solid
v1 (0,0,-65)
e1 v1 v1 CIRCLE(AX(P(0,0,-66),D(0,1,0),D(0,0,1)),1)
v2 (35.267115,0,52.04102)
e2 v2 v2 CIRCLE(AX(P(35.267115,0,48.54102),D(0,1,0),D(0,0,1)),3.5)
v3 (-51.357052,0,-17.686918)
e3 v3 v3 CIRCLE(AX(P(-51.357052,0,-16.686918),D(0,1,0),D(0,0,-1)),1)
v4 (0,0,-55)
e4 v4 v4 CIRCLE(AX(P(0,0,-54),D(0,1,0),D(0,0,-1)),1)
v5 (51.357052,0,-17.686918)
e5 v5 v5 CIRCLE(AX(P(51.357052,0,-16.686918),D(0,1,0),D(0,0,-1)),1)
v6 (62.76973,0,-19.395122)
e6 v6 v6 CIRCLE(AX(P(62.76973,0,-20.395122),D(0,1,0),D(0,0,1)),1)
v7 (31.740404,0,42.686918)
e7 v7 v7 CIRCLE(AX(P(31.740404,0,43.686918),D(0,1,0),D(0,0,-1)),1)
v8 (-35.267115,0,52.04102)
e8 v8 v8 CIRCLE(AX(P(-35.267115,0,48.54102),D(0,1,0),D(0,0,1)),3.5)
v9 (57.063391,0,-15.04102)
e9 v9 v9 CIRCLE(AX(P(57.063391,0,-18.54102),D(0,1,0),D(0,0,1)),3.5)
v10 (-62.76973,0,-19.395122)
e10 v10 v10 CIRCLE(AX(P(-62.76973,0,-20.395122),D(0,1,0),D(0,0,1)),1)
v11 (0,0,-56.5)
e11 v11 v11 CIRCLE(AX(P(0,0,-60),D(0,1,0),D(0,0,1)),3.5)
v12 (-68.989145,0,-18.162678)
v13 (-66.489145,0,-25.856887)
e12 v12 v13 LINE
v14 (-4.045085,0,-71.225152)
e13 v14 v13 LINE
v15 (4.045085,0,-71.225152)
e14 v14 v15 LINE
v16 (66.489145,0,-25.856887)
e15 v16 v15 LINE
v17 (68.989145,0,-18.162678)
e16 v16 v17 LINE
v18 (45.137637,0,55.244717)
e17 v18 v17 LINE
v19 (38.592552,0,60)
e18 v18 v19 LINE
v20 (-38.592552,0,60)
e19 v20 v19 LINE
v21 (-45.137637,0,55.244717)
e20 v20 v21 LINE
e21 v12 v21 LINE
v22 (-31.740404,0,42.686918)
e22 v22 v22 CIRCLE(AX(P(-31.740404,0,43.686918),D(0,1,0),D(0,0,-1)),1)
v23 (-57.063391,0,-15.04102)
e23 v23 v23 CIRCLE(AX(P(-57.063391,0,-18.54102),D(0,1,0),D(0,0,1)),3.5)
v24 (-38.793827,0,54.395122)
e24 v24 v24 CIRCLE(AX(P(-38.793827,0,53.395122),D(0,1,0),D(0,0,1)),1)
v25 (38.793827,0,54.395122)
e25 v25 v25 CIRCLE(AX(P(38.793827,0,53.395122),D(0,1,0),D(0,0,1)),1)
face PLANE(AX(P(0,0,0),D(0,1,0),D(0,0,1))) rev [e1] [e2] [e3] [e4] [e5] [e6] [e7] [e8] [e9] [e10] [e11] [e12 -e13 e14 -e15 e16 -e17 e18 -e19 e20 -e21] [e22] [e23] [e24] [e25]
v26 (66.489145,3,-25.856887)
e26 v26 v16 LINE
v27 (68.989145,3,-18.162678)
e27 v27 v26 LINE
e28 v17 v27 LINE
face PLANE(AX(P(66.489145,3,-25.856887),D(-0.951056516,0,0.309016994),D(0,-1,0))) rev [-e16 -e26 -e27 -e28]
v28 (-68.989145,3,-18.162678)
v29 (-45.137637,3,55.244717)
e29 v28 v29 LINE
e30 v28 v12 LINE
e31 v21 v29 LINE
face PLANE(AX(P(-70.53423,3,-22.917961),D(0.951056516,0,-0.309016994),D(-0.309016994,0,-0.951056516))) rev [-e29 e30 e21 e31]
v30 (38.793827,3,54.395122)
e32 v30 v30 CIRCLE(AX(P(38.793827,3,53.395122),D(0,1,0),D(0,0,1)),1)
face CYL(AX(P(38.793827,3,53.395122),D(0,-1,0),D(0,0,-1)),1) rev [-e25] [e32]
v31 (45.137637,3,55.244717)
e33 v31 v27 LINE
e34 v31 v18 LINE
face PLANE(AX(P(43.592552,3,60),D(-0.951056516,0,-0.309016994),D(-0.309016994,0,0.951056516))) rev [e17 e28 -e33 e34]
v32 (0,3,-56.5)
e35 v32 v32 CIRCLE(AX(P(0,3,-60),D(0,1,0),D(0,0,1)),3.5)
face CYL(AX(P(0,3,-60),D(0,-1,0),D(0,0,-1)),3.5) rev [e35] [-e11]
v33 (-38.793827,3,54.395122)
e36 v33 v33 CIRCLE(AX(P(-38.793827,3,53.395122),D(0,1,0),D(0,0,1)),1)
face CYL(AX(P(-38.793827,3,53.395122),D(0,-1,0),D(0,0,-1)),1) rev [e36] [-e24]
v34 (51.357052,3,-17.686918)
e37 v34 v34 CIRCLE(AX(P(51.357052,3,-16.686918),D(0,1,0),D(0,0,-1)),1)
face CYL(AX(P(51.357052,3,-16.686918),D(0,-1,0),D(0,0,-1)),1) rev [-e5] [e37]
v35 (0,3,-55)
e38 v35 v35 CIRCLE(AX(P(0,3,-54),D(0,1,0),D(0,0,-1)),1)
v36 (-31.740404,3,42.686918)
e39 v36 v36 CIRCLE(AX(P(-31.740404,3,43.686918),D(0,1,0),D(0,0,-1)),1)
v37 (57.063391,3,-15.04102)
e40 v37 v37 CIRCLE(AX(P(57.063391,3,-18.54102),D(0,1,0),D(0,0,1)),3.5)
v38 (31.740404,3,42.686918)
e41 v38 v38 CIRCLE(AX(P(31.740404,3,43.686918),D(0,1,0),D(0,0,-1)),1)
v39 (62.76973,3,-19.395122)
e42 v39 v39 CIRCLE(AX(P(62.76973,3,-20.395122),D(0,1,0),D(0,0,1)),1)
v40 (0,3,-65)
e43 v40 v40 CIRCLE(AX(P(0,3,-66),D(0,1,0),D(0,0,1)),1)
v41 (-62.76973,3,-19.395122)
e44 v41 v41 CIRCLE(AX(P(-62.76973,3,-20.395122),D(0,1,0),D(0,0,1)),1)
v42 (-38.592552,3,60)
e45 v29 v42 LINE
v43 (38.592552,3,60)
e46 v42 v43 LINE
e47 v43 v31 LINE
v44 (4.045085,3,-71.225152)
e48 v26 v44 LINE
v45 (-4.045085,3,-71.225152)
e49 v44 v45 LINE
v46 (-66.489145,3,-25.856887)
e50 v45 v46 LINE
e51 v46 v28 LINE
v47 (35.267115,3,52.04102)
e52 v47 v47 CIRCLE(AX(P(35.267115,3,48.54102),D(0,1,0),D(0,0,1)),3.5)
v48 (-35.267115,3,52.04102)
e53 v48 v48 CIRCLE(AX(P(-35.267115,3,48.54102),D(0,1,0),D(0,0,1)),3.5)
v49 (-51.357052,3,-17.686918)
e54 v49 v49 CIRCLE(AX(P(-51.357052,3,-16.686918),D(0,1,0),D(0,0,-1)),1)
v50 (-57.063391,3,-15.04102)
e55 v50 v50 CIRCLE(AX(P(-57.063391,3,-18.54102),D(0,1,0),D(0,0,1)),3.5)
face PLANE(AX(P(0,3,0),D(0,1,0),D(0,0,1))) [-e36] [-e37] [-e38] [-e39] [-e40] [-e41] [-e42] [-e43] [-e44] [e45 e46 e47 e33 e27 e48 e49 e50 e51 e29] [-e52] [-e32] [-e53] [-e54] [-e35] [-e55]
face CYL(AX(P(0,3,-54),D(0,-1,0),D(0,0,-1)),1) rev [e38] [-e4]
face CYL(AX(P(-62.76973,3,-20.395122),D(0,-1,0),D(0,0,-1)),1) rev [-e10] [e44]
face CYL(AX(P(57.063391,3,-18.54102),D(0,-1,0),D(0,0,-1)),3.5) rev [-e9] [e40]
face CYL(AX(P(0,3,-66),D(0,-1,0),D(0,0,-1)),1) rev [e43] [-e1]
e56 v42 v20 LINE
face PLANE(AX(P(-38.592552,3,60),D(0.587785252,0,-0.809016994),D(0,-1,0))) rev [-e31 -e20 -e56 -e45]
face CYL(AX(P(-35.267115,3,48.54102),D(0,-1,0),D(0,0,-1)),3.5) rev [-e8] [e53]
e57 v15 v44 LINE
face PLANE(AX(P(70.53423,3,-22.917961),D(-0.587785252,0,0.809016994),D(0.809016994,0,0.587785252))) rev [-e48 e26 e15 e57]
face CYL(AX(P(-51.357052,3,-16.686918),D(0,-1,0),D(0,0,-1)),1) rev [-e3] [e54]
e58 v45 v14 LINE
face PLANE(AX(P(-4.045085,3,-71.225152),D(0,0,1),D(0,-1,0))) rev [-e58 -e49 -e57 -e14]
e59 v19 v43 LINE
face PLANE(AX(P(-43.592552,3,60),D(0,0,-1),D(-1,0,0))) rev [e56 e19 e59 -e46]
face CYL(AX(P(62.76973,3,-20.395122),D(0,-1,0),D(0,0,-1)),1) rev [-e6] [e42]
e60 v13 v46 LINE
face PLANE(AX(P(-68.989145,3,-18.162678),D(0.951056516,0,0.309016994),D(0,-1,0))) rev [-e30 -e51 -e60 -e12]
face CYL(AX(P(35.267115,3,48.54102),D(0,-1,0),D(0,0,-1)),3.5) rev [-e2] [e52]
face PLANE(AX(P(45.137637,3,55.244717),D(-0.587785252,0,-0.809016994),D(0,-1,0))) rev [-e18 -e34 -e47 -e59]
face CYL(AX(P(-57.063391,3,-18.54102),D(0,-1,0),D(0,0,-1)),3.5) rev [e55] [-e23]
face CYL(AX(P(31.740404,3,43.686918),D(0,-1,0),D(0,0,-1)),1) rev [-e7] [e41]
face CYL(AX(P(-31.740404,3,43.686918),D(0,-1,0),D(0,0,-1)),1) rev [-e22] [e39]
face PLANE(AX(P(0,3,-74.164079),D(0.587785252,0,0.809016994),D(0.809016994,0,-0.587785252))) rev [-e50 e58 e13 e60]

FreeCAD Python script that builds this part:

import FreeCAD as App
import Part
import Sketcher
from FreeCAD import Vector
Q = App.Units.Quantity


def edges_at(feature, points):
    """Names of the edges that pass closest to the given points."""
    edges = feature.Shape.Edges
    near = lambda p: min(range(len(edges)), key=lambda i: edges[i].distToShape(Part.Vertex(*p))[0])
    return sorted({f"Edge{near(p) + 1}" for p in points})


def add_polygon(sketch, points):
    """Adds a closed chain of lines whose ends are joined by coincident constraints."""
    first, n = sketch.GeometryCount, len(points)
    for a, b in zip(points, points[1:] + points[:1]):
        sketch.addGeometry(Part.LineSegment(App.Vector(*a, 0), App.Vector(*b, 0)), False)
    for i in range(n):
        sketch.addConstraint(Sketcher.Constraint("Coincident", first + i, 2, first + (i + 1) % n, 1))

doc = App.newDocument("Part")
params = doc.addObject("Spreadsheet::Sheet", "Params")
for row, (alias, value) in enumerate([
    ("sketch1_diameter", "2 mm"),
    ("sketch1_diameter2", "7 mm"),
    ("pad1_length", "3 mm"),
    ("chamfer_size", "5 mm"),
], start=1):
    params.set(f"A{row}", alias)
    params.set(f"B{row}", "=" + value)
    params.setAlias(f"B{row}", alias)

body = doc.addObject("PartDesign::Body", "Body")

sketch1 = body.newObject("Sketcher::SketchObject", "Sketch")
sketch1.AttachmentSupport = (doc.getObject("XZ_Plane"), [""])
sketch1.MapMode = "FlatFace"
add_polygon(sketch1, [(70.5, -22.9), (0, -74.2), (-70.5, -22.9), (-43.6, 60), (43.6, 60)])
sketch1.addGeometry(Part.Circle(Vector(-38.8, 53.4, 0), Vector(0, 0, 1), 1), False)
sketch1.addGeometry(Part.Circle(Vector(-35.3, 48.5, 0), Vector(0, 0, 1), 3.5), False)
sketch1.addGeometry(Part.Circle(Vector(-31.7, 43.7, 0), Vector(0, 0, 1), 1), False)
sketch1.addGeometry(Part.Circle(Vector(31.7, 43.7, 0), Vector(0, 0, 1), 1), False)
sketch1.addGeometry(Part.Circle(Vector(38.8, 53.4, 0), Vector(0, 0, 1), 1), False)
sketch1.addGeometry(Part.Circle(Vector(35.3, 48.5, 0), Vector(0, 0, 1), 3.5), False)
sketch1.addGeometry(Part.Circle(Vector(-62.8, -20.4, 0), Vector(0, 0, 1), 1), False)
sketch1.addGeometry(Part.Circle(Vector(-57.1, -18.5, 0), Vector(0, 0, 1), 3.5), False)
sketch1.addGeometry(Part.Circle(Vector(-51.4, -16.7, 0), Vector(0, 0, 1), 1), False)
sketch1.addGeometry(Part.Circle(Vector(51.4, -16.7, 0), Vector(0, 0, 1), 1), False)
sketch1.addGeometry(Part.Circle(Vector(57.1, -18.5, 0), Vector(0, 0, 1), 3.5), False)
sketch1.addGeometry(Part.Circle(Vector(62.8, -20.4, 0), Vector(0, 0, 1), 1), False)
sketch1.addGeometry(Part.Circle(Vector(0, -54, 0), Vector(0, 0, 1), 1), False)
sketch1.addGeometry(Part.Circle(Vector(0, -60, 0), Vector(0, 0, 1), 3.5), False)
sketch1.addGeometry(Part.Circle(Vector(0, -66, 0), Vector(0, 0, 1), 1), False)
sketch1.addConstraint([
    Sketcher.Constraint("Horizontal", 3),
    Sketcher.Constraint("Equal", 5, 7),
    Sketcher.Constraint("Equal", 7, 8),
    Sketcher.Constraint("Equal", 8, 9),
    Sketcher.Constraint("Equal", 6, 10),
    Sketcher.Constraint("Equal", 9, 11),
    Sketcher.Constraint("Equal", 10, 12),
    Sketcher.Constraint("Equal", 11, 13),
    Sketcher.Constraint("Equal", 13, 14),
    Sketcher.Constraint("Equal", 12, 15),
    Sketcher.Constraint("Equal", 14, 16),
    Sketcher.Constraint("Equal", 16, 17),
    Sketcher.Constraint("Equal", 15, 18),
    Sketcher.Constraint("Equal", 17, 19),
    Sketcher.Constraint("Symmetric", 7, 3, 8, 3, -2),
    Sketcher.Constraint("Symmetric", 5, 3, 9, 3, -2),
    Sketcher.Constraint("Symmetric", 6, 3, 10, 3, -2),
    Sketcher.Constraint("Symmetric", 13, 3, 14, 3, -2),
    Sketcher.Constraint("Symmetric", 12, 3, 15, 3, -2),
    Sketcher.Constraint("Symmetric", 11, 3, 16, 3, -2),
    Sketcher.Constraint("Symmetric", 1, 2, 4, 2, -2),
    Sketcher.Constraint("PointOnObject", 17, 3, -2),
    Sketcher.Constraint("PointOnObject", 18, 3, -2),
    Sketcher.Constraint("PointOnObject", 19, 3, -2),
    Sketcher.Constraint("PointOnObject", 0, 2, -2),
    Sketcher.Constraint("Equal", 1, 2),
    Sketcher.Constraint("Equal", 2, 4),
    Sketcher.Constraint("Diameter", 5, 2.0),
    Sketcher.Constraint("Diameter", 6, 7.0),
    Sketcher.Constraint("Angle", 0, Q("-144 deg")),
    Sketcher.Constraint("Angle", 2, Q("72 deg")),
    Sketcher.Constraint("DistanceY", 17, 3, -1, 1, 54.0),
    Sketcher.Constraint("DistanceY", 18, 3, -1, 1, 60.0),
    Sketcher.Constraint("DistanceY", 19, 3, -1, 1, 66.0),
    Sketcher.Constraint("DistanceY", -1, 1, 2, 2, 60.0),
    Sketcher.Constraint("DistanceY", 6, 3, 5, 3, 4.854102),
    Sketcher.Constraint("DistanceY", 7, 3, 6, 3, 4.854102),
    Sketcher.Constraint("DistanceY", 11, 3, 12, 3, 1.854102),
    Sketcher.Constraint("DistanceY", 12, 3, 13, 3, 1.854102),
    Sketcher.Constraint("DistanceX", 1, 2, 11, 3, 7.7645),
    Sketcher.Constraint("DistanceX", 13, 3, 2, 2, 7.7645),
    Sketcher.Constraint("DistanceX", 3, 1, 3, 2, 87.185103),
    Sketcher.Constraint("DistanceY", -1, 1, 5, 3, 53.395122),
    Sketcher.Constraint("DistanceY", 11, 3, -1, 1, 20.395122),
    Sketcher.Constraint("DistanceX", 12, 3, -1, 1, 57.063391),
    Sketcher.Constraint("DistanceX", 5, 3, 6, 3, 3.526712),
    Sketcher.Constraint("DistanceX", 6, 3, 7, 3, 3.526712),
    Sketcher.Constraint("DistanceX", 6, 3, 8, 3, 67.007519),
])
sketch1.setExpression("Constraints[32]", "Params.sketch1_diameter")
sketch1.setExpression("Constraints[33]", "Params.sketch1_diameter2")
pad1 = body.newObject("PartDesign::Pad", "Pad")
pad1.Profile = sketch1
pad1.setExpression("Length", "Params.pad1_length")
pad1.Reversed = True
doc.recompute()

chamfer = body.newObject("PartDesign::Chamfer", "Chamfer")
chamfer.Base = (pad1, edges_at(pad1, [
    (43.593, 1.5, 60),
    (-43.593, 1.5, 60),
    (-70.534, 1.5, -22.918),
    (0, 1.5, -74.164),
    (70.534, 1.5, -22.918),
]))
chamfer.setExpression("Size", "Params.chamfer_size")

doc.recompute()
